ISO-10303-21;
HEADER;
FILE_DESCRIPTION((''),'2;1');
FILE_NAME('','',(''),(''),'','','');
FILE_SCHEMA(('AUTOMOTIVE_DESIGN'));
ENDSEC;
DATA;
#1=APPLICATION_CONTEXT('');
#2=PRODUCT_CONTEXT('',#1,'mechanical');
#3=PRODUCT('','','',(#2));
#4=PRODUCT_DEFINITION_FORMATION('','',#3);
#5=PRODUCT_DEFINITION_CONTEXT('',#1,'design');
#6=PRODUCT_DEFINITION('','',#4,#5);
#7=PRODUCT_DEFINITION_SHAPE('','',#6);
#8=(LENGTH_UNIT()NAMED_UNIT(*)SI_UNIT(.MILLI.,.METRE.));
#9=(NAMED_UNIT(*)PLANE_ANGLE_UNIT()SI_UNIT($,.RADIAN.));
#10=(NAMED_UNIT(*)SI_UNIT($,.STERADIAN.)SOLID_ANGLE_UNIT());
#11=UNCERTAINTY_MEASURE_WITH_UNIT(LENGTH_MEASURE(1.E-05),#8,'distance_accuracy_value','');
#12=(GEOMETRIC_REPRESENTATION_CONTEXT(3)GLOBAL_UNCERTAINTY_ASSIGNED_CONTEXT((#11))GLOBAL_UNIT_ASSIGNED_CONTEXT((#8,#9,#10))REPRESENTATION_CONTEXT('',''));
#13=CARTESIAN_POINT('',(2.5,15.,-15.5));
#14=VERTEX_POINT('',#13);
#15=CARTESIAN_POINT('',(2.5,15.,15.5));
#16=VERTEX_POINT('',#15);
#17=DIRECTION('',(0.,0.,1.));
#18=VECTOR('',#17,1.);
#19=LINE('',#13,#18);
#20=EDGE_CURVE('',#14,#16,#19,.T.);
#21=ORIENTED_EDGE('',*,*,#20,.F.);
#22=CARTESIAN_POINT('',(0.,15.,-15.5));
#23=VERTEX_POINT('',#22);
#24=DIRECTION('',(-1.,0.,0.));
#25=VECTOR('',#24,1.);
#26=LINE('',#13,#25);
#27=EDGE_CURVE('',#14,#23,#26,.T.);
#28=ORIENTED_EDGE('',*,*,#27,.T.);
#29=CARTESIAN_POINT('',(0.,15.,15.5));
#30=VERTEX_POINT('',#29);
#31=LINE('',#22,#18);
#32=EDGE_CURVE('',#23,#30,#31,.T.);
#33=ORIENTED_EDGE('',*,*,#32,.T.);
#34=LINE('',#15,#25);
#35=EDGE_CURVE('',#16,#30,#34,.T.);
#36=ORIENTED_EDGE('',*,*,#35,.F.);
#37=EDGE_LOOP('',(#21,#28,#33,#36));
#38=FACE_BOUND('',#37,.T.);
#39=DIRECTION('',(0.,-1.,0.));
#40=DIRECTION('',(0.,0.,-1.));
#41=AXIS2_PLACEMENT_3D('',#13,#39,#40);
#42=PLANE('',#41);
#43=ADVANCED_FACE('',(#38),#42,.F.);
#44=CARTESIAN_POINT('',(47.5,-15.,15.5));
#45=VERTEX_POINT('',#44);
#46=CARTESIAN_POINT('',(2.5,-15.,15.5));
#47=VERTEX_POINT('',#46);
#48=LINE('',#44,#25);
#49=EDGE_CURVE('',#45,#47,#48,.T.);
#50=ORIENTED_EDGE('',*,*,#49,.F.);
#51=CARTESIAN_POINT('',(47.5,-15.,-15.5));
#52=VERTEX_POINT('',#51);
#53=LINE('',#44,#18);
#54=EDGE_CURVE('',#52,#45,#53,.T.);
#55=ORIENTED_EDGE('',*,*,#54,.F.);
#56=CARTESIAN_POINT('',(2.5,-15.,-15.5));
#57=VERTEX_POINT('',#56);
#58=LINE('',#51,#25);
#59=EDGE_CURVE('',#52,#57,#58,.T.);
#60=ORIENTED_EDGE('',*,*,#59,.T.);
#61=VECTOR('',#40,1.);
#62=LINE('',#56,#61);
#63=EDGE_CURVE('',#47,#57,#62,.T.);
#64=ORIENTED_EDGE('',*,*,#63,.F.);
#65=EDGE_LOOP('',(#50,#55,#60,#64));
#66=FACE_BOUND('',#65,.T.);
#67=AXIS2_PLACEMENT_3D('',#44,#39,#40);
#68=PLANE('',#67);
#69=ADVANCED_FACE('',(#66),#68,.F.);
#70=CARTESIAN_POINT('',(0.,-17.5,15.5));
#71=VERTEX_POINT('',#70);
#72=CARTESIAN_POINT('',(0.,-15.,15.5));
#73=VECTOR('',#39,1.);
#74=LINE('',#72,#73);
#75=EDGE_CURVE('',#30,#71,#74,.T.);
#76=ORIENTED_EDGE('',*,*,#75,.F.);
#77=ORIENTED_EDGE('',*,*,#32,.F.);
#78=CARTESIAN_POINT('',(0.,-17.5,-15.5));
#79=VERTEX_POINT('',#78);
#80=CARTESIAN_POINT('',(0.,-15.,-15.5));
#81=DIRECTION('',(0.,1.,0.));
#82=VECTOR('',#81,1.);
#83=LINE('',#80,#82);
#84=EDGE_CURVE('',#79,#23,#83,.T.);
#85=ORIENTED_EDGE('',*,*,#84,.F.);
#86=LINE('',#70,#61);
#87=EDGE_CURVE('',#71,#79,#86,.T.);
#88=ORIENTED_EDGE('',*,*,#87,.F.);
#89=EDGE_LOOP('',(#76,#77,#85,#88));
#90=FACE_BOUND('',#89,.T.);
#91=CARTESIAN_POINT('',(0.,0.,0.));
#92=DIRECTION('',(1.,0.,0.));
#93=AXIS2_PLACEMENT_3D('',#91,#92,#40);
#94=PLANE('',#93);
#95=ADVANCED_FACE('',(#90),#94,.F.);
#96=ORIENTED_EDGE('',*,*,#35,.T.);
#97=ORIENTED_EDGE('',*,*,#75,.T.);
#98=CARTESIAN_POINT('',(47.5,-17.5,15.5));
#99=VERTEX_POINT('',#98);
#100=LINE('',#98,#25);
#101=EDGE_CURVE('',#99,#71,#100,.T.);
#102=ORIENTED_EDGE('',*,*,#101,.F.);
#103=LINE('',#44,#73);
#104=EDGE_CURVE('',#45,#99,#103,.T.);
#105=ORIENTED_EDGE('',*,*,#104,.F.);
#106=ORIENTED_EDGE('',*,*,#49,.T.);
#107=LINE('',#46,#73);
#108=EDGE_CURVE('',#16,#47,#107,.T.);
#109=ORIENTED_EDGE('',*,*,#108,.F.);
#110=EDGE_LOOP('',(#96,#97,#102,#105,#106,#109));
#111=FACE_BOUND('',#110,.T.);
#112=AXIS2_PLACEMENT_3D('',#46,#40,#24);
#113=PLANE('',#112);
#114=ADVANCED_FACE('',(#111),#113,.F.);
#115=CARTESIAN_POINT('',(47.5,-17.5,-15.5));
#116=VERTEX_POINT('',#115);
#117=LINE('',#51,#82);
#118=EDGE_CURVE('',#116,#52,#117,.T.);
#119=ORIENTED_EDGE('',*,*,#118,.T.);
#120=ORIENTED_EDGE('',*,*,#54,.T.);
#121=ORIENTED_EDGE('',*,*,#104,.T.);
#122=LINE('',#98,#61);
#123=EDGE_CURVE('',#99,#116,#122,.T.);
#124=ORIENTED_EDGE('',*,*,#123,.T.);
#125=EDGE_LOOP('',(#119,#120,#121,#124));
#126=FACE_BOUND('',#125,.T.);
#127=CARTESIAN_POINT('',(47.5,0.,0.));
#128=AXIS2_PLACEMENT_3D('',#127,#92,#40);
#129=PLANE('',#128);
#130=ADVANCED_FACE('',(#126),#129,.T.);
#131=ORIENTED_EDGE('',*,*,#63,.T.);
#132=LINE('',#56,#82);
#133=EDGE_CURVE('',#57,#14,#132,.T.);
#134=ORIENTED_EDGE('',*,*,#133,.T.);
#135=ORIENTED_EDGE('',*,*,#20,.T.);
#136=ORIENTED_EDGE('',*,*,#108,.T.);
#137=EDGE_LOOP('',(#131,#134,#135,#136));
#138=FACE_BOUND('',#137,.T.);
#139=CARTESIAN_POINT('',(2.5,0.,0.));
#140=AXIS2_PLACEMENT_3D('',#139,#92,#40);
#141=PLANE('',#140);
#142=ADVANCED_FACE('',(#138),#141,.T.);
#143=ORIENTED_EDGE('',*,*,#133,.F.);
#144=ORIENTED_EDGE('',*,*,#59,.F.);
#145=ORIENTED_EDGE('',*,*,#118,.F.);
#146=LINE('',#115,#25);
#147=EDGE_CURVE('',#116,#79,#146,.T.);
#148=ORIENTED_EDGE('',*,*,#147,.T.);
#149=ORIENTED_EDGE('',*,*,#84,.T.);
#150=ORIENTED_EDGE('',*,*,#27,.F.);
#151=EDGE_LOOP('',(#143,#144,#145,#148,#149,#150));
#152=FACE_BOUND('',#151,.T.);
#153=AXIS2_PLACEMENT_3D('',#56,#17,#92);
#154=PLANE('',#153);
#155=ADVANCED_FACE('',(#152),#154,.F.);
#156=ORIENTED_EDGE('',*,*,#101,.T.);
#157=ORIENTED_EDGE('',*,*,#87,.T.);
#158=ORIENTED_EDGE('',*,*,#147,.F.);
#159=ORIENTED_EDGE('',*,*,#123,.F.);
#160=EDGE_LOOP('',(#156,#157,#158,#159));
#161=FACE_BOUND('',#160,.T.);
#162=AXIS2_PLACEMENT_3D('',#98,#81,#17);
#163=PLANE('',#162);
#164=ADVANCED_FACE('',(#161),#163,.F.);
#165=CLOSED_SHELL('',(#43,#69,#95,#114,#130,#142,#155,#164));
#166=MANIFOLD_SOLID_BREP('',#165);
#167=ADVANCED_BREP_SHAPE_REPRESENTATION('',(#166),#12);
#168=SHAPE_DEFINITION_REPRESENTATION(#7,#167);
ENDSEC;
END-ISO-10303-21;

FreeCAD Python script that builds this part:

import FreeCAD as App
import Part
import Sketcher
from FreeCAD import Vector
Q = App.Units.Quantity


def add_polygon(sketch, points):
    """Adds a closed chain of lines whose ends are joined by coincident constraints."""
    first, n = sketch.GeometryCount, len(points)
    for a, b in zip(points, points[1:] + points[:1]):
        sketch.addGeometry(Part.LineSegment(App.Vector(*a, 0), App.Vector(*b, 0)), False)
    for i in range(n):
        sketch.addConstraint(Sketcher.Constraint("Coincident", first + i, 2, first + (i + 1) % n, 1))

doc = App.newDocument("Part")
params = doc.addObject("Spreadsheet::Sheet", "Params")
for row, (alias, value) in enumerate([
    ("sketch1_width", "30 mm"),
    ("sketch1_height", "31 mm"),
    ("pad1_length", "2.5 mm"),
    ("sketch2_height", "31 mm"),
    ("sketch2_width", "2.5 mm"),
    ("pad2_length", "47.5 mm"),
], start=1):
    params.set(f"A{row}", alias)
    params.set(f"B{row}", "=" + value)
    params.setAlias(f"B{row}", alias)

body = doc.addObject("PartDesign::Body", "Body")

# Sketch on YZ plane
sketch1 = body.newObject("Sketcher::SketchObject", "Sketch")
sketch1.AttachmentSupport = (doc.getObject("YZ_Plane"), [""])
sketch1.MapMode = "FlatFace"
add_polygon(sketch1, [(15, 16), (-15, 16), (-15, -16), (15, -16)])  # lines 0-3
sketch1.addConstraint([
    Sketcher.Constraint("Horizontal", 0),
    Sketcher.Constraint("Vertical", 1),
    Sketcher.Constraint("Horizontal", 2),
    Sketcher.Constraint("Vertical", 3),
    Sketcher.Constraint("Symmetric", 0, 2, 2, 2, -1, 1),
    Sketcher.Constraint("DistanceX", 0, 2, 0, 1, Q("30 mm")),
    Sketcher.Constraint("DistanceY", 1, 2, 1, 1, Q("31 mm")),
])
sketch1.setExpression("Constraints[9]", "Params.sketch1_width")
sketch1.setExpression("Constraints[10]", "Params.sketch1_height")
pad1 = body.newObject("PartDesign::Pad", "Pad")
pad1.Profile = sketch1
pad1.setExpression("Length", "Params.pad1_length")

# Sketch on YZ plane
sketch2 = body.newObject("Sketcher::SketchObject", "Sketch001")
sketch2.AttachmentSupport = (doc.getObject("YZ_Plane"), [""])
sketch2.MapMode = "FlatFace"
add_polygon(sketch2, [(-15, 15.5), (-17.5, 15.5), (-17.5, -15.5), (-15, -15.5)])  # lines 0-3
sketch2.addConstraint([
    Sketcher.Constraint("Horizontal", 0),
    Sketcher.Constraint("Vertical", 1),
    Sketcher.Constraint("Horizontal", 2),
    Sketcher.Constraint("Vertical", 3),
    Sketcher.Constraint("DistanceY", 1, 2, 1, 1, Q("31 mm")),
    Sketcher.Constraint("DistanceX", 0, 2, 0, 1, Q("2.5 mm")),
    Sketcher.Constraint("DistanceX", 2, 2, -1, 1, Q("15 mm")),
    Sketcher.Constraint("DistanceY", -1, 1, 0, 2, Q("15.5 mm")),
])
sketch2.setExpression("Constraints[8]", "Params.sketch2_height")
sketch2.setExpression("Constraints[9]", "Params.sketch2_width")
pad2 = body.newObject("PartDesign::Pad", "Pad001")
pad2.Profile = sketch2
pad2.setExpression("Length", "Params.pad2_length")

doc.recompute()
